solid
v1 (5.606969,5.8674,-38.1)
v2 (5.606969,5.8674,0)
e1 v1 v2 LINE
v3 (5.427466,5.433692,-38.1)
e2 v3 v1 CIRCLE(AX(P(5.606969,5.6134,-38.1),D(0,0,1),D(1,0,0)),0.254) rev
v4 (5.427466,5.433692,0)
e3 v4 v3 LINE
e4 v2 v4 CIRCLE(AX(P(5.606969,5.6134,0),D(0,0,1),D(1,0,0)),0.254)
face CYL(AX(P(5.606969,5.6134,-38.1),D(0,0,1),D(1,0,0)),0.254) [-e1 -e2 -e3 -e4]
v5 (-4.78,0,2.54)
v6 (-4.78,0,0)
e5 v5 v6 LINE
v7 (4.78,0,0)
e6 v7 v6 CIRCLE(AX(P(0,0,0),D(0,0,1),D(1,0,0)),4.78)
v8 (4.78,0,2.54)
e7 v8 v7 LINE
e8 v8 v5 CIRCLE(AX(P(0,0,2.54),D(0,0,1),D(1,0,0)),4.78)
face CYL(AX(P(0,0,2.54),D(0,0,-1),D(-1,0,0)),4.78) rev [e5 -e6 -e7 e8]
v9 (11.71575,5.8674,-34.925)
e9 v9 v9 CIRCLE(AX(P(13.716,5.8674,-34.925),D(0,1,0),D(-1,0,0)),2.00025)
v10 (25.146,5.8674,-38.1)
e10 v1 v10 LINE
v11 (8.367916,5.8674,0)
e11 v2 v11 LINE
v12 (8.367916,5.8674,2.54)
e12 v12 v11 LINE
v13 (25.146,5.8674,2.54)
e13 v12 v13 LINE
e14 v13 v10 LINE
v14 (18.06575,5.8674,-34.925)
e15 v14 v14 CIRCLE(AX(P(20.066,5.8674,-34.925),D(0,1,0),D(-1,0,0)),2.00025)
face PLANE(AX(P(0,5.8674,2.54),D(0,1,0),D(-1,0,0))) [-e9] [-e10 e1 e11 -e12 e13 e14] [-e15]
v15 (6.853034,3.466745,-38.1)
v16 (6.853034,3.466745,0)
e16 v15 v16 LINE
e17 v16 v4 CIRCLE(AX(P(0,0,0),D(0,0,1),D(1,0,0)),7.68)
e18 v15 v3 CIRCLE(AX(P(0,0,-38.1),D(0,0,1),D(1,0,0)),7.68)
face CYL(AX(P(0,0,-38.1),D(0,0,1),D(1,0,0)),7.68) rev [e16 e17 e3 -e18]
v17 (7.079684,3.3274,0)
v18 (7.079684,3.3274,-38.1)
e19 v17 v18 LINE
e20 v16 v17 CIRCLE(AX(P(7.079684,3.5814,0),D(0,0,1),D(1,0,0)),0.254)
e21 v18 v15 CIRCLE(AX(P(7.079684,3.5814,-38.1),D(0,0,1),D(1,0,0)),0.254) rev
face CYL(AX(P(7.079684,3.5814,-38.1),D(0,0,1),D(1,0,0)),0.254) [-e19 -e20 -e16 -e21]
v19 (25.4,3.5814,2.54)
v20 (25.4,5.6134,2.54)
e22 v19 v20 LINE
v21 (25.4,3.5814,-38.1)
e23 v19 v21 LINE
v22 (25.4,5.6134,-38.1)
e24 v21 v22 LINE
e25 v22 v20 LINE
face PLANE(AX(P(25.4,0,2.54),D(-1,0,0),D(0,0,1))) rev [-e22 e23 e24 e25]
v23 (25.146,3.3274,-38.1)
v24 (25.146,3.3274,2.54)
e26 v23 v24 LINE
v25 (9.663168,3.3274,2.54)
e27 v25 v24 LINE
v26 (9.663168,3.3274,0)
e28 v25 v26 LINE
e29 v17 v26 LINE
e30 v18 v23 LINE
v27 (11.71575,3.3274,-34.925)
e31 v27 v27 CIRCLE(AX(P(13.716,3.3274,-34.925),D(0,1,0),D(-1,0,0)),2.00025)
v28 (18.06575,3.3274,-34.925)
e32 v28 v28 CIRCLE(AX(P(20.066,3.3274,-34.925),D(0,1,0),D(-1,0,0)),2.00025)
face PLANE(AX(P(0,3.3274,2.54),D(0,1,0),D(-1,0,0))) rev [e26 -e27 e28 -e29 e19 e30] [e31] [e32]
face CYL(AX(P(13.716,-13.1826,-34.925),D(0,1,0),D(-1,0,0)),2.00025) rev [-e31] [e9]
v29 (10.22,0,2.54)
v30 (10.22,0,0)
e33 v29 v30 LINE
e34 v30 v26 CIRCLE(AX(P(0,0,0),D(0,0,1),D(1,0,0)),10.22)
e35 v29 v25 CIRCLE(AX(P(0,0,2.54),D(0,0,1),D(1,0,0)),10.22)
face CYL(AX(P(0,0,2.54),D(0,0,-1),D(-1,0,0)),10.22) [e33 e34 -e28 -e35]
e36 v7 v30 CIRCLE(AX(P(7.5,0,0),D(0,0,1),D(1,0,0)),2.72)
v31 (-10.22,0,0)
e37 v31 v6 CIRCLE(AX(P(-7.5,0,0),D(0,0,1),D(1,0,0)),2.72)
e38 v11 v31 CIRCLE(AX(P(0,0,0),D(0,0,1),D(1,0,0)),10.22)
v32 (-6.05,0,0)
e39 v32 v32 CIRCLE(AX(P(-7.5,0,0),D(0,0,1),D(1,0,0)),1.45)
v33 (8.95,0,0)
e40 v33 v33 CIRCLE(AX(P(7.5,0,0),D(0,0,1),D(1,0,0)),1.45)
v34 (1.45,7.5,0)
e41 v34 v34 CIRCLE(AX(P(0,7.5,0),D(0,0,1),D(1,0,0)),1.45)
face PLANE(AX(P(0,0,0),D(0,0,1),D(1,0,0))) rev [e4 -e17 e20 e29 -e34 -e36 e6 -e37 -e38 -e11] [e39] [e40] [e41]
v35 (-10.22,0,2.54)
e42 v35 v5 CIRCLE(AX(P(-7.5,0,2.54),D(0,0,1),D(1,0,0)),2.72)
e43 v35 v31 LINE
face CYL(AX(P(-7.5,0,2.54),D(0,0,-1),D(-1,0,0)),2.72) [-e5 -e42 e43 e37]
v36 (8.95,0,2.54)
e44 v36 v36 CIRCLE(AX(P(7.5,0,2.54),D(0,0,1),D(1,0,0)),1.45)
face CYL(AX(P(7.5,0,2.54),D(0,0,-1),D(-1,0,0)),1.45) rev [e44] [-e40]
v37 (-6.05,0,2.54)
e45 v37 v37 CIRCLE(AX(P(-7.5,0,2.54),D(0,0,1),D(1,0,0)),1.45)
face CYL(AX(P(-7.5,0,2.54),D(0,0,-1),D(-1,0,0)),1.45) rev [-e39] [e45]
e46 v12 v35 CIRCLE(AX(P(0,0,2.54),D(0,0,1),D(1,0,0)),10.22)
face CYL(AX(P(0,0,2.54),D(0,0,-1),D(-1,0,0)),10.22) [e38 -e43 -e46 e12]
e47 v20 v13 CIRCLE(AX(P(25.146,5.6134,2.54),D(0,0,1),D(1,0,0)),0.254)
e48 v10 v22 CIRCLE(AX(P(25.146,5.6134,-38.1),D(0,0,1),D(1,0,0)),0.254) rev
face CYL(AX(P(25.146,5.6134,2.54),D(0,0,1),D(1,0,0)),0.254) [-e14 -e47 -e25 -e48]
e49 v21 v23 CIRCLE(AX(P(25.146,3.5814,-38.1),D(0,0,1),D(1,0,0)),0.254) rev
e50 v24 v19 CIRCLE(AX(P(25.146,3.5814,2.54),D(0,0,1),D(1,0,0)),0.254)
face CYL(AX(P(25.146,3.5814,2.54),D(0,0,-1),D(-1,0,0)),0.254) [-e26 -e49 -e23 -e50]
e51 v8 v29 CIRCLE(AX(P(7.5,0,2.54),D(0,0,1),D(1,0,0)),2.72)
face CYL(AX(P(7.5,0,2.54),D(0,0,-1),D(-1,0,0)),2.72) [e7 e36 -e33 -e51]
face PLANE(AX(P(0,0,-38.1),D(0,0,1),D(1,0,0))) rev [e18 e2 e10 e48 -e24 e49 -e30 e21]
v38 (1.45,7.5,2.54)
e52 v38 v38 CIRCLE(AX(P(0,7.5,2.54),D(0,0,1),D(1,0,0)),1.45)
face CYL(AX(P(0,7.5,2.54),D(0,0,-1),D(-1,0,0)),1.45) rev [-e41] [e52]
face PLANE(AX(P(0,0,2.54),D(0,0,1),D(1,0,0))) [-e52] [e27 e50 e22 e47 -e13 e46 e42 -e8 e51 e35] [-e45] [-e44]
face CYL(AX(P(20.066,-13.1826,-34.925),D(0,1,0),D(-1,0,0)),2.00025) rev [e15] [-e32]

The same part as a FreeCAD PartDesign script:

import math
import FreeCAD as App
import Part
import Sketcher
from FreeCAD import Vector
Q = App.Units.Quantity


def edges_at(feature, points):
    """Names of the edges that pass closest to the given points."""
    edges = feature.Shape.Edges
    near = lambda p: min(range(len(edges)), key=lambda i: edges[i].distToShape(Part.Vertex(*p))[0])
    return sorted({f"Edge{near(p) + 1}" for p in points})

doc = App.newDocument("Part")
body = doc.addObject("PartDesign::Body", "Body")

sketch1 = body.newObject("Sketcher::SketchObject", "Sketch")
sketch1.AttachmentSupport = (doc.getObject("XY_Plane"), [""])
sketch1.MapMode = "FlatFace"
sketch1.addGeometry(Part.ArcOfCircle(Part.Circle(Vector(0, 0, 0), Vector(0, 0, 1), 10.2), math.radians(0), math.radians(19)), False)
sketch1.addGeometry(Part.LineSegment(Vector(9.7, 3.3, 0), Vector(25.4, 3.3, 0)), False)
sketch1.addGeometry(Part.LineSegment(Vector(25.4, 3.3, 0), Vector(25.4, 5.9, 0)), False)
sketch1.addGeometry(Part.LineSegment(Vector(25.4, 5.9, 0), Vector(8.4, 5.9, 0)), False)
sketch1.addGeometry(Part.ArcOfCircle(Part.Circle(Vector(0, 0, 0), Vector(0, 0, 1), 10.2), math.radians(35), math.radians(180)), False)
sketch1.addGeometry(Part.ArcOfCircle(Part.Circle(Vector(-7.5, 0, 0), Vector(0, 0, 1), 2.7), math.radians(180), math.radians(360)), False)
sketch1.addGeometry(Part.ArcOfCircle(Part.Circle(Vector(0, 0, 0), Vector(0, 0, 1), 4.8), math.radians(0), math.radians(180)), False)
sketch1.addGeometry(Part.ArcOfCircle(Part.Circle(Vector(7.5, 0, 0), Vector(0, 0, 1), 2.7), math.radians(180), math.radians(360)), False)
sketch1.addGeometry(Part.Circle(Vector(-7.5, 0, 0), Vector(0, 0, 1), 1.4), False)
sketch1.addGeometry(Part.Circle(Vector(7.5, 0, 0), Vector(0, 0, 1), 1.4), False)
sketch1.addGeometry(Part.Circle(Vector(0, 7.5, 0), Vector(0, 0, 1), 1.4), False)
sketch1.addConstraint(Sketcher.Constraint("Coincident", 0, 2, 1, 1))
sketch1.addConstraint(Sketcher.Constraint("Coincident", 1, 2, 2, 1))
sketch1.addConstraint(Sketcher.Constraint("Coincident", 2, 2, 3, 1))
sketch1.addConstraint(Sketcher.Constraint("Coincident", 3, 2, 4, 1))
sketch1.addConstraint(Sketcher.Constraint("Tangent", 4, 2, 5, 1))
sketch1.addConstraint(Sketcher.Constraint("Tangent", 5, 2, 6, 2))
sketch1.addConstraint(Sketcher.Constraint("Tangent", 6, 1, 7, 1))
sketch1.addConstraint(Sketcher.Constraint("Tangent", 7, 2, 0, 1))
sketch1.addConstraint(Sketcher.Constraint("Horizontal", 1))
sketch1.addConstraint(Sketcher.Constraint("Vertical", 2))
sketch1.addConstraint(Sketcher.Constraint("Horizontal", 3))
sketch1.addConstraint(Sketcher.Constraint("Coincident", 0, 3, -1, 1))
sketch1.addConstraint(Sketcher.Constraint("Coincident", 4, 3, -1, 1))
sketch1.addConstraint(Sketcher.Constraint("Coincident", 6, 3, -1, 1))
sketch1.addConstraint(Sketcher.Constraint("Coincident", 8, 3, 5, 3))
sketch1.addConstraint(Sketcher.Constraint("Coincident", 9, 3, 7, 3))
sketch1.addConstraint(Sketcher.Constraint("Equal", 0, 4))
sketch1.addConstraint(Sketcher.Constraint("Equal", 8, 9))
sketch1.addConstraint(Sketcher.Constraint("Equal", 9, 10))
sketch1.addConstraint(Sketcher.Constraint("PointOnObject", 5, 3, -1))
sketch1.addConstraint(Sketcher.Constraint("PointOnObject", 7, 3, -1))
sketch1.addConstraint(Sketcher.Constraint("PointOnObject", 10, 3, -2))
sketch1.addConstraint(Sketcher.Constraint("DistanceY", 2, 1, 2, 2, Q("0.1 in")))
sketch1.addConstraint(Sketcher.Constraint("DistanceX", -1, 1, 1, 2, Q("1 in")))
sketch1.addConstraint(Sketcher.Constraint("Diameter", 8, Q("2.9 mm")))
sketch1.addConstraint(Sketcher.Constraint("Radius", 0, Q("10.22 mm")))
sketch1.addConstraint(Sketcher.Constraint("Radius", 5, Q("2.72 mm")))
sketch1.addConstraint(Sketcher.Constraint("DistanceY", -1, 1, 0, 2, Q("0.131 in")))
sketch1.addConstraint(Sketcher.Constraint("DistanceY", -1, 1, 10, 3, Q("7.5 mm")))
pad1 = body.newObject("PartDesign::Pad", "Pad")
pad1.Profile = sketch1
pad1.Length = Q("0.1 in")

sketch2 = body.newObject("Sketcher::SketchObject", "Sketch001")
sketch2.AttachmentSupport = (doc.getObject("XY_Plane"), [""])
sketch2.MapMode = "FlatFace"
sketch2.addGeometry(Part.ArcOfCircle(Part.Circle(Vector(0, 0, 0), Vector(0, 0, 1), 7.7), math.radians(26), math.radians(50)), False)
sketch2.addGeometry(Part.LineSegment(Vector(6.9, 3.3, 0), Vector(25.4, 3.3, 0)), False)
sketch2.addGeometry(Part.LineSegment(Vector(25.4, 3.3, 0), Vector(25.4, 5.9, 0)), False)
sketch2.addGeometry(Part.LineSegment(Vector(25.4, 5.9, 0), Vector(5, 5.9, 0)), False)
sketch2.addConstraint(Sketcher.Constraint("Coincident", 0, 1, 1, 1))
sketch2.addConstraint(Sketcher.Constraint("Coincident", 1, 2, 2, 1))
sketch2.addConstraint(Sketcher.Constraint("Coincident", 2, 2, 3, 1))
sketch2.addConstraint(Sketcher.Constraint("Coincident", 3, 2, 0, 2))
sketch2.addConstraint(Sketcher.Constraint("Horizontal", 1))
sketch2.addConstraint(Sketcher.Constraint("Vertical", 2))
sketch2.addConstraint(Sketcher.Constraint("Horizontal", 3))
sketch2.addConstraint(Sketcher.Constraint("Coincident", 0, 3, -1, 1))
sketch2.addConstraint(Sketcher.Constraint("DistanceY", 2, 1, 2, 2, Q("0.1 in")))
sketch2.addConstraint(Sketcher.Constraint("DistanceX", -1, 1, 1, 2, Q("1 in")))
sketch2.addConstraint(Sketcher.Constraint("Radius", 0, Q("7.68 mm")))
sketch2.addConstraint(Sketcher.Constraint("DistanceY", -1, 1, 0, 1, Q("0.131 in")))
pad2 = body.newObject("PartDesign::Pad", "Pad001")
pad2.Profile = sketch2
pad2.Length = Q("1.5 in")
pad2.Reversed = True
doc.recompute()

fillet = body.newObject("PartDesign::Fillet", "Fillet")
fillet.Base = (pad2, edges_at(pad2, [
    (25.4, 5.867, -17.78),
    (25.4, 3.327, -17.78),
    (4.955, 5.867, -19.05),
    (6.922, 3.327, -19.05),
]))
fillet.Radius = Q("0.01 in")

sketch3 = body.newObject("Sketcher::SketchObject", "Sketch002")
sketch3.AttachmentSupport = (doc.getObject("XZ_Plane"), [""])
sketch3.MapMode = "FlatFace"
sketch3.AttachmentOffset = App.Placement(Vector(0, 0, -0.231 * 25.4), App.Rotation())
sketch3.addGeometry(Part.ArcOfCircle(Part.Circle(Vector(20.1, -34.9, 0), Vector(0, 0, 1), 2), math.radians(180), math.radians(270)), False)
sketch3.addGeometry(Part.ArcOfCircle(Part.Circle(Vector(20.1, -34.9, 0), Vector(0, 0, 1), 2), math.radians(0), math.radians(180)), False)
sketch3.addGeometry(Part.ArcOfCircle(Part.Circle(Vector(20.1, -34.9, 0), Vector(0, 0, 1), 2), math.radians(-90), math.radians(0)), False)
sketch3.addGeometry(Part.Circle(Vector(13.7, -34.9, 0), Vector(0, 0, 1), 2), False)
sketch3.addConstraint(Sketcher.Constraint("Tangent", 0, 1, 1, 2))
sketch3.addConstraint(Sketcher.Constraint("Tangent", 1, 1, 2, 2))
sketch3.addConstraint(Sketcher.Constraint("Tangent", 2, 1, 0, 2))
sketch3.addConstraint(Sketcher.Constraint("Equal", 2, 3))
sketch3.addConstraint(Sketcher.Constraint("Horizontal", 2, 3, 3, 3))
sketch3.addConstraint(Sketcher.Constraint("Horizontal", 3, 3, 0, 1))
sketch3.addConstraint(Sketcher.Constraint("Horizontal", 0, 1, 1, 1))
sketch3.addConstraint(Sketcher.Constraint("Vertical", 1, 3, 2, 1))
sketch3.addConstraint(Sketcher.Constraint("Diameter", 3, Q("0.1575 in")))
sketch3.addConstraint(Sketcher.Constraint("DistanceX", -1, 1, 0, 3, Q("0.79 in")))
sketch3.addConstraint(Sketcher.Constraint("DistanceX", -1, 1, 3, 3, Q("0.54 in")))
sketch3.addConstraint(Sketcher.Constraint("DistanceY", 0, 3, -1, 1, Q("1.375 in")))
pocket1 = body.newObject("PartDesign::Pocket", "Pocket")
pocket1.Profile = sketch3
pocket1.Length = Q("0.75 in")
pocket1.Reversed = True

doc.recompute()
